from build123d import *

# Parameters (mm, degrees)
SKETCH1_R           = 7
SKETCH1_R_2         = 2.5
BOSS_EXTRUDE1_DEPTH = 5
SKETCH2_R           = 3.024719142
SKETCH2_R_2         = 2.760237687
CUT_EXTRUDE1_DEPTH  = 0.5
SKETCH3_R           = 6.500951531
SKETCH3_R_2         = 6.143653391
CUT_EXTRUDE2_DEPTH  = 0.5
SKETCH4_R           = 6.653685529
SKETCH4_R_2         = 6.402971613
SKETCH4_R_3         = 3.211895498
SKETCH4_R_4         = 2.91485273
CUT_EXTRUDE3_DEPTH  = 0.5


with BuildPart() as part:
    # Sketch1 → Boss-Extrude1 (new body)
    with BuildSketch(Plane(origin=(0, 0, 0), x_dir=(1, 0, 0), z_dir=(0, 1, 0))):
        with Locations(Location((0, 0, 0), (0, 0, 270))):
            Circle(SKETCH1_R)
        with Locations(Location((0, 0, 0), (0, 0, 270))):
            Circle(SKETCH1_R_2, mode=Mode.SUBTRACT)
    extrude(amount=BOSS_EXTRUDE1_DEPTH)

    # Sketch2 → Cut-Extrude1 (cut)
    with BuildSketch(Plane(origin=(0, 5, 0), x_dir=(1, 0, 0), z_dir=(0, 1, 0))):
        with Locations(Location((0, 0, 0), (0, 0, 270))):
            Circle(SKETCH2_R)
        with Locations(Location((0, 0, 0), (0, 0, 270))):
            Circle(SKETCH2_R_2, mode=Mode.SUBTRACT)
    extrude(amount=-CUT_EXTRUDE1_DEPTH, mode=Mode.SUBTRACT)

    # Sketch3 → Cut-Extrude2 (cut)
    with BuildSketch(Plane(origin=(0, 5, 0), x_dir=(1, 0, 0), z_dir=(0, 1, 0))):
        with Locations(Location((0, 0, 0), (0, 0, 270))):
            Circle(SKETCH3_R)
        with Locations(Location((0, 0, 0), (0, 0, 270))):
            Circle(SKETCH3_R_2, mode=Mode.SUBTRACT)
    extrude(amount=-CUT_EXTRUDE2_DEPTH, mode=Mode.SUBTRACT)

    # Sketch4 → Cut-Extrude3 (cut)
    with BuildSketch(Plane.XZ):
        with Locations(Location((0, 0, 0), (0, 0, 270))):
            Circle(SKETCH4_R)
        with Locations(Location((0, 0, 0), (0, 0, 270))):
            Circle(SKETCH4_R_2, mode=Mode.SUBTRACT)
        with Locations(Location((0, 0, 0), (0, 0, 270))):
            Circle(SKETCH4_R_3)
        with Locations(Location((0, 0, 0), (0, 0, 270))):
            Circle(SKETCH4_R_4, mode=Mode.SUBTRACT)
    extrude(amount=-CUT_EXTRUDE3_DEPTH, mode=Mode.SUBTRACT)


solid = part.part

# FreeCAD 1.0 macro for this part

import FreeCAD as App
import Part
import Sketcher
Q = App.Units.Quantity

doc = App.newDocument("Part")
params = doc.addObject("Spreadsheet::Sheet", "Params")
for row, (alias, value) in enumerate([
    ("sketch1_diameter", "14 mm"),
    ("sketch1_diameter2", "5 mm"),
    ("pad1_length", "5 mm"),
    ("pocket1_length", "0.5 mm"),
    ("pocket2_length", "0.5 mm"),
    ("pocket3_length", "0.5 mm"),
], start=1):
    params.set(f"A{row}", alias)
    params.set(f"B{row}", "=" + value)
    params.setAlias(f"B{row}", alias)

body = doc.addObject("PartDesign::Body", "Body")

sketch1 = body.newObject("Sketcher::SketchObject", "Sketch")
sketch1.AttachmentSupport = (doc.getObject("XZ_Plane"), [""])
sketch1.MapMode = "FlatFace"
sketch1.addGeometry([
    Part.Circle(App.Vector(0, 0, 0), App.Vector(0, 0, 1), 7),
    Part.Circle(App.Vector(0, 0, 0), App.Vector(0, 0, 1), 2.5),
], False)
sketch1.addConstraint([
    Sketcher.Constraint("Coincident", 0, 3, -1, 1),
    Sketcher.Constraint("Coincident", 1, 3, -1, 1),
    Sketcher.Constraint("Diameter", 0, Q("14 mm")),
    Sketcher.Constraint("Diameter", 1, Q("5 mm")),
])
sketch1.setExpression("Constraints[2]", "Params.sketch1_diameter")
sketch1.setExpression("Constraints[3]", "Params.sketch1_diameter2")
pad1 = body.newObject("PartDesign::Pad", "Pad")
pad1.Profile = sketch1
pad1.setExpression("Length", "Params.pad1_length")
pad1.Reversed = True

sketch2 = body.newObject("Sketcher::SketchObject", "Sketch001")
sketch2.AttachmentSupport = (doc.getObject("XZ_Plane"), [""])
sketch2.MapMode = "FlatFace"
sketch2.AttachmentOffset = App.Placement(App.Vector(0, 0, -5), App.Rotation())
sketch2.addGeometry([
    Part.Circle(App.Vector(0, 0, 0), App.Vector(0, 0, 1), 3),
    Part.Circle(App.Vector(0, 0, 0), App.Vector(0, 0, 1), 2.8),
], False)
sketch2.addConstraint([
    Sketcher.Constraint("Coincident", 0, 3, -1, 1),
    Sketcher.Constraint("Coincident", 1, 3, -1, 1),
    Sketcher.Constraint("Diameter", 0, Q("6.049438 mm")),
    Sketcher.Constraint("Diameter", 1, Q("5.520475 mm")),
])
pocket1 = body.newObject("PartDesign::Pocket", "Pocket")
pocket1.Profile = sketch2
pocket1.setExpression("Length", "Params.pocket1_length")
pocket1.Reversed = True

sketch3 = body.newObject("Sketcher::SketchObject", "Sketch002")
sketch3.AttachmentSupport = (doc.getObject("XZ_Plane"), [""])
sketch3.MapMode = "FlatFace"
sketch3.AttachmentOffset = App.Placement(App.Vector(0, 0, -5), App.Rotation())
sketch3.addGeometry([
    Part.Circle(App.Vector(0, 0, 0), App.Vector(0, 0, 1), 7),
    Part.Circle(App.Vector(0, 0, 0), App.Vector(0, 0, 1), 6),
], False)
sketch3.addConstraint([
    Sketcher.Constraint("Coincident", 0, 3, -1, 1),
    Sketcher.Constraint("Coincident", 1, 3, -1, 1),
    Sketcher.Constraint("Diameter", 0, Q("13.001903 mm")),
    Sketcher.Constraint("Diameter", 1, Q("12.287307 mm")),
])
pocket2 = body.newObject("PartDesign::Pocket", "Pocket001")
pocket2.Profile = sketch3
pocket2.setExpression("Length", "Params.pocket2_length")
pocket2.Reversed = True

sketch4 = body.newObject("Sketcher::SketchObject", "Sketch003")
sketch4.AttachmentSupport = (doc.getObject("XZ_Plane"), [""])
sketch4.MapMode = "FlatFace"
sketch4.addGeometry([
    Part.Circle(App.Vector(0, 0, 0), App.Vector(0, 0, 1), 6.7),
    Part.Circle(App.Vector(0, 0, 0), App.Vector(0, 0, 1), 6.4),
    Part.Circle(App.Vector(0, 0, 0), App.Vector(0, 0, 1), 3.2),
    Part.Circle(App.Vector(0, 0, 0), App.Vector(0, 0, 1), 2.9),
], False)
sketch4.addConstraint([
    Sketcher.Constraint("Coincident", 0, 3, -1, 1),
    Sketcher.Constraint("Coincident", 1, 3, -1, 1),
    Sketcher.Constraint("Coincident", 2, 3, -1, 1),
    Sketcher.Constraint("Coincident", 3, 3, -1, 1),
    Sketcher.Constraint("Diameter", 0, Q("13.307371 mm")),
    Sketcher.Constraint("Diameter", 2, Q("6.423791 mm")),
    Sketcher.Constraint("Diameter", 1, Q("12.805943 mm")),
    Sketcher.Constraint("Diameter", 3, Q("5.829705 mm")),
])
pocket3 = body.newObject("PartDesign::Pocket", "Pocket002")
pocket3.Profile = sketch4
pocket3.setExpression("Length", "Params.pocket3_length")

doc.recompute()
